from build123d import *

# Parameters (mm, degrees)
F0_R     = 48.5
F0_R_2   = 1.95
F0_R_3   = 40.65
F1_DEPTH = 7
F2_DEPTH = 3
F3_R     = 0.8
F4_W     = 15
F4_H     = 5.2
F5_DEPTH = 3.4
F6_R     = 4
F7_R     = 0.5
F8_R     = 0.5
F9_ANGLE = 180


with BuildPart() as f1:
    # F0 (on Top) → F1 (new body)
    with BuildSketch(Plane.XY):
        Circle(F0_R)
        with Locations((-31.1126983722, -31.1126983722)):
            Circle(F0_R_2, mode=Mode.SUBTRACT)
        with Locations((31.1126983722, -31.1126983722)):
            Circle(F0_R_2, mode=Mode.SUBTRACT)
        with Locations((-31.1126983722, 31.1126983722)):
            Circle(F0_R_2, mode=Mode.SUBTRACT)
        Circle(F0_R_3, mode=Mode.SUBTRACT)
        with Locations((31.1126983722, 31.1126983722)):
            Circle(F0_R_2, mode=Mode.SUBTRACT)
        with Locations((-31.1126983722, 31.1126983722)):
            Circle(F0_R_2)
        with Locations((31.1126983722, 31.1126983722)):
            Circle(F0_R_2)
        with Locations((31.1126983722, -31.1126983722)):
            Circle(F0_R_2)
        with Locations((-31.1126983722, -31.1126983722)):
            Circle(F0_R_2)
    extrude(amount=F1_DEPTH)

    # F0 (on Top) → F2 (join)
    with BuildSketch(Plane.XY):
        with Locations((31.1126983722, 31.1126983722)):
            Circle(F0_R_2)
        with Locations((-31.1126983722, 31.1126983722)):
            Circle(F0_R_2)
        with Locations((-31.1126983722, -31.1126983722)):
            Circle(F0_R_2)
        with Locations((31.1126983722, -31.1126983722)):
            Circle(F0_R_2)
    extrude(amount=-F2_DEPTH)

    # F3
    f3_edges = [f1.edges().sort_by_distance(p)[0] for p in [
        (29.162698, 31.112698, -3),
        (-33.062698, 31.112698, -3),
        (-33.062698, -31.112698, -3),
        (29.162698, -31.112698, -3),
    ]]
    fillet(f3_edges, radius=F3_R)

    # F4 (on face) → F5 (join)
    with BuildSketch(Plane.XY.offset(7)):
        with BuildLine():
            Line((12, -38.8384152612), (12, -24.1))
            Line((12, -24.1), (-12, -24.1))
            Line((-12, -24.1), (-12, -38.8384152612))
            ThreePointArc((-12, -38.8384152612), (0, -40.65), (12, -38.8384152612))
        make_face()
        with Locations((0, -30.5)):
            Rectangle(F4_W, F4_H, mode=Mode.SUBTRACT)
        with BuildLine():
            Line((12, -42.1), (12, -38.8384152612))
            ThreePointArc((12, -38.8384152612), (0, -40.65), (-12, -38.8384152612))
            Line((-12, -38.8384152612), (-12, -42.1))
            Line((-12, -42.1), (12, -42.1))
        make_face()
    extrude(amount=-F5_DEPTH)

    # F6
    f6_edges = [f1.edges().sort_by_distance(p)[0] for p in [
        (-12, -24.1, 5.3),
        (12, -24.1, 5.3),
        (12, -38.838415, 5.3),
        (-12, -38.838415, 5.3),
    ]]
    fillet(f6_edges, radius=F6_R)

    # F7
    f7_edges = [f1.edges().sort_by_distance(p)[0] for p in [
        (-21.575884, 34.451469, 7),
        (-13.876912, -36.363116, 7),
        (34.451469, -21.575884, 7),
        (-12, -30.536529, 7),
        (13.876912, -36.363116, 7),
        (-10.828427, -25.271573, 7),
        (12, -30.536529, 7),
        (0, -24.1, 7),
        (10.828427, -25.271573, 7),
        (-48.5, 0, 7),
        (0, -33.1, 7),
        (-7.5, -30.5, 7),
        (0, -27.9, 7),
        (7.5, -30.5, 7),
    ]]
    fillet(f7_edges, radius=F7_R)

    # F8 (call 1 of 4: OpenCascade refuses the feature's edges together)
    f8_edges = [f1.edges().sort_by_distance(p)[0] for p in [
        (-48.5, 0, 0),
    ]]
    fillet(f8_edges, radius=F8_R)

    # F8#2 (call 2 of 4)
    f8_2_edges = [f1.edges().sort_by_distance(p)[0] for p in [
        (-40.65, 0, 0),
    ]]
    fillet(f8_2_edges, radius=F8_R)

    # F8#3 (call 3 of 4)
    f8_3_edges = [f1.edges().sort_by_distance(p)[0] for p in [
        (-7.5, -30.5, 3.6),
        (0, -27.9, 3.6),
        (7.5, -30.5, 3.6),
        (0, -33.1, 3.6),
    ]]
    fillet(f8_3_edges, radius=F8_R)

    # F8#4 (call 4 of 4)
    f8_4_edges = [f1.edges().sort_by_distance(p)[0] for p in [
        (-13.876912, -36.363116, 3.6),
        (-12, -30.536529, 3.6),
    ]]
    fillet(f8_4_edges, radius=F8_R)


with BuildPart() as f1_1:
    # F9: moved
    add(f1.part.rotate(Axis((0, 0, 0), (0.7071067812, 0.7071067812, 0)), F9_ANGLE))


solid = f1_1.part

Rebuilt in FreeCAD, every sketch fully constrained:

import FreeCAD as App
import Part
import Sketcher

V = App.Vector


def edges_at(feature, points):
    """Names of the edges that pass closest to the given points."""
    edges = feature.Shape.Edges
    near = lambda p: min(range(len(edges)), key=lambda i: edges[i].distToShape(Part.Vertex(*p))[0])
    return sorted({f"Edge{near(p) + 1}" for p in points})

doc = App.newDocument("Part")
body = doc.addObject("PartDesign::Body", "Body")

sketch1 = body.newObject("Sketcher::SketchObject", "Sketch")
sketch1.AttachmentSupport = (doc.getObject("XY_Plane"), [""])
sketch1.MapMode = "FlatFace"
sketch1.addGeometry([
    Part.Circle(V(0, 0, 0), V(0, 0, 1), 48.5),
    Part.Circle(V(0, 0, 0), V(0, 0, 1), 40.65),
], False)
sketch1.addConstraint([
    Sketcher.Constraint("Coincident", 0, 3, -1, 1),
    Sketcher.Constraint("Coincident", 1, 3, -1, 1),
    Sketcher.Constraint("Diameter", 0, 97.0),
    Sketcher.Constraint("Diameter", 1, 81.3),
])
pad1 = body.newObject("PartDesign::Pad", "Pad")
pad1.Profile = sketch1
pad1.Length = 7

sketch2 = body.newObject("Sketcher::SketchObject", "Sketch001")
sketch2.AttachmentSupport = (doc.getObject("XY_Plane"), [""])
sketch2.MapMode = "FlatFace"
sketch2.addGeometry([
    Part.Circle(V(31.112698, 31.112698, 0), V(0, 0, 1), 1.95),
    Part.Circle(V(-31.112698, 31.112698, 0), V(0, 0, 1), 1.95),
    Part.Circle(V(-31.112698, -31.112698, 0), V(0, 0, 1), 1.95),
    Part.Circle(V(31.112698, -31.112698, 0), V(0, 0, 1), 1.95),
], False)
sketch2.addConstraint([
    Sketcher.Constraint("Equal", 0, 1),
    Sketcher.Constraint("Equal", 1, 2),
    Sketcher.Constraint("Equal", 2, 3),
    Sketcher.Constraint("Symmetric", 0, 3, 2, 3, -1, 1),
    Sketcher.Constraint("Symmetric", 1, 3, 3, 3, -1, 1),
    Sketcher.Constraint("Symmetric", 0, 3, 1, 3, -2),
    Sketcher.Constraint("Diameter", 0, 3.9),
    Sketcher.Constraint("DistanceX", -1, 1, 0, 3, 31.112698),
    Sketcher.Constraint("DistanceY", -1, 1, 0, 3, 31.112698),
])
pad2 = body.newObject("PartDesign::Pad", "Pad001")
pad2.Profile = sketch2
pad2.Length = 3
pad2.Reversed = True
doc.recompute()

fillet = body.newObject("PartDesign::Fillet", "Fillet")
fillet.Base = (pad2, edges_at(pad2, [
    (29.163, 31.113, -3),
    (-33.063, 31.113, -3),
    (-33.063, -31.113, -3),
    (29.163, -31.113, -3),
]))
fillet.Radius = 0.8

sketch3 = body.newObject("Sketcher::SketchObject", "Sketch002")
sketch3.AttachmentSupport = (doc.getObject("XY_Plane"), [""])
sketch3.MapMode = "FlatFace"
sketch3.AttachmentOffset = App.Placement(V(0, 0, 7), App.Rotation())
sketch3.addGeometry([
    Part.LineSegment(V(12, -24.1, 0), V(-12, -24.1, 0)),
    Part.LineSegment(V(-12, -24.1, 0), V(-12, -42.1, 0)),
    Part.LineSegment(V(-12, -42.1, 0), V(12, -42.1, 0)),
    Part.LineSegment(V(12, -42.1, 0), V(12, -24.1, 0)),
    Part.LineSegment(V(7.5, -33.1, 0), V(-7.5, -33.1, 0)),
    Part.LineSegment(V(-7.5, -33.1, 0), V(-7.5, -27.9, 0)),
    Part.LineSegment(V(-7.5, -27.9, 0), V(7.5, -27.9, 0)),
    Part.LineSegment(V(7.5, -27.9, 0), V(7.5, -33.1, 0)),
], False)
sketch3.addConstraint([
    Sketcher.Constraint("Coincident", 0, 2, 1, 1),
    Sketcher.Constraint("Coincident", 1, 2, 2, 1),
    Sketcher.Constraint("Coincident", 2, 2, 3, 1),
    Sketcher.Constraint("Coincident", 3, 2, 0, 1),
    Sketcher.Constraint("Coincident", 4, 2, 5, 1),
    Sketcher.Constraint("Coincident", 5, 2, 6, 1),
    Sketcher.Constraint("Coincident", 6, 2, 7, 1),
    Sketcher.Constraint("Coincident", 7, 2, 4, 1),
    Sketcher.Constraint("Horizontal", 0),
    Sketcher.Constraint("Vertical", 1),
    Sketcher.Constraint("Horizontal", 2),
    Sketcher.Constraint("Vertical", 3),
    Sketcher.Constraint("Horizontal", 4),
    Sketcher.Constraint("Vertical", 5),
    Sketcher.Constraint("Horizontal", 6),
    Sketcher.Constraint("Vertical", 7),
    Sketcher.Constraint("DistanceX", 0, 2, 0, 1, 24.0),
    Sketcher.Constraint("DistanceX", 4, 2, 4, 1, 15.0),
    Sketcher.Constraint("DistanceY", 1, 2, 1, 1, 18.0),
    Sketcher.Constraint("DistanceY", 5, 1, 5, 2, 5.2),
    Sketcher.Constraint("DistanceX", 0, 2, -1, 1, 12.0),
    Sketcher.Constraint("DistanceY", 4, 2, 0, 2, 9.0),
    Sketcher.Constraint("DistanceY", 0, 2, -1, 1, 24.1),
    Sketcher.Constraint("DistanceX", 4, 2, -1, 1, 7.5),
])
pad3 = body.newObject("PartDesign::Pad", "Pad002")
pad3.Profile = sketch3
pad3.Length = 3.4
pad3.Reversed = True
doc.recompute()

fillet2 = body.newObject("PartDesign::Fillet", "Fillet001")
fillet2.Base = (pad3, edges_at(pad3, [
    (-12, -24.1, 5.3),
    (12, -24.1, 5.3),
    (12, -38.838, 5.3),
    (-12, -38.838, 5.3),
]))
fillet2.Radius = 4
doc.recompute()

fillet3 = body.newObject("PartDesign::Fillet", "Fillet002")
fillet3.Base = (fillet2, edges_at(fillet2, [
    (-21.576, 34.451, 7),
    (-13.877, -36.363, 7),
    (34.451, -21.576, 7),
    (-12, -30.537, 7),
    (13.877, -36.363, 7),
    (-10.828, -25.272, 7),
    (12, -30.537, 7),
    (0, -24.1, 7),
    (10.828, -25.272, 7),
    (-48.5, 0, 7),
    (0, -33.1, 7),
    (-7.5, -30.5, 7),
    (0, -27.9, 7),
    (7.5, -30.5, 7),
]))
fillet3.Radius = 0.5
doc.recompute()

fillet4 = body.newObject("PartDesign::Fillet", "Fillet003")
fillet4.Base = (fillet3, edges_at(fillet3, [(-48.5, 0, 0)]))
fillet4.Radius = 0.5
doc.recompute()

fillet5 = body.newObject("PartDesign::Fillet", "Fillet004")
fillet5.Base = (fillet4, edges_at(fillet4, [(-40.65, 0, 0)]))
fillet5.Radius = 0.5
doc.recompute()

fillet6 = body.newObject("PartDesign::Fillet", "Fillet005")
fillet6.Base = (fillet5, edges_at(fillet5, [
    (-7.5, -30.5, 3.6),
    (0, -27.9, 3.6),
    (7.5, -30.5, 3.6),
    (0, -33.1, 3.6),
]))
fillet6.Radius = 0.5
doc.recompute()

fillet7 = body.newObject("PartDesign::Fillet", "Fillet006")
fillet7.Base = (fillet6, edges_at(fillet6, [(-13.877, -36.363, 3.6), (-12, -30.537, 3.6)]))
fillet7.Radius = 0.5
body2 = doc.addObject("PartDesign::Body", "Body001")
doc.recompute()

body.Placement = App.Placement(V(0, 0, 0), App.Rotation(V(0.707106781, 0.707106781, 0), 180))
boolean = body2.newObject("PartDesign::Boolean", "Boolean")
boolean.Type = "Fuse"
boolean.addObjects([body])

doc.recompute()
